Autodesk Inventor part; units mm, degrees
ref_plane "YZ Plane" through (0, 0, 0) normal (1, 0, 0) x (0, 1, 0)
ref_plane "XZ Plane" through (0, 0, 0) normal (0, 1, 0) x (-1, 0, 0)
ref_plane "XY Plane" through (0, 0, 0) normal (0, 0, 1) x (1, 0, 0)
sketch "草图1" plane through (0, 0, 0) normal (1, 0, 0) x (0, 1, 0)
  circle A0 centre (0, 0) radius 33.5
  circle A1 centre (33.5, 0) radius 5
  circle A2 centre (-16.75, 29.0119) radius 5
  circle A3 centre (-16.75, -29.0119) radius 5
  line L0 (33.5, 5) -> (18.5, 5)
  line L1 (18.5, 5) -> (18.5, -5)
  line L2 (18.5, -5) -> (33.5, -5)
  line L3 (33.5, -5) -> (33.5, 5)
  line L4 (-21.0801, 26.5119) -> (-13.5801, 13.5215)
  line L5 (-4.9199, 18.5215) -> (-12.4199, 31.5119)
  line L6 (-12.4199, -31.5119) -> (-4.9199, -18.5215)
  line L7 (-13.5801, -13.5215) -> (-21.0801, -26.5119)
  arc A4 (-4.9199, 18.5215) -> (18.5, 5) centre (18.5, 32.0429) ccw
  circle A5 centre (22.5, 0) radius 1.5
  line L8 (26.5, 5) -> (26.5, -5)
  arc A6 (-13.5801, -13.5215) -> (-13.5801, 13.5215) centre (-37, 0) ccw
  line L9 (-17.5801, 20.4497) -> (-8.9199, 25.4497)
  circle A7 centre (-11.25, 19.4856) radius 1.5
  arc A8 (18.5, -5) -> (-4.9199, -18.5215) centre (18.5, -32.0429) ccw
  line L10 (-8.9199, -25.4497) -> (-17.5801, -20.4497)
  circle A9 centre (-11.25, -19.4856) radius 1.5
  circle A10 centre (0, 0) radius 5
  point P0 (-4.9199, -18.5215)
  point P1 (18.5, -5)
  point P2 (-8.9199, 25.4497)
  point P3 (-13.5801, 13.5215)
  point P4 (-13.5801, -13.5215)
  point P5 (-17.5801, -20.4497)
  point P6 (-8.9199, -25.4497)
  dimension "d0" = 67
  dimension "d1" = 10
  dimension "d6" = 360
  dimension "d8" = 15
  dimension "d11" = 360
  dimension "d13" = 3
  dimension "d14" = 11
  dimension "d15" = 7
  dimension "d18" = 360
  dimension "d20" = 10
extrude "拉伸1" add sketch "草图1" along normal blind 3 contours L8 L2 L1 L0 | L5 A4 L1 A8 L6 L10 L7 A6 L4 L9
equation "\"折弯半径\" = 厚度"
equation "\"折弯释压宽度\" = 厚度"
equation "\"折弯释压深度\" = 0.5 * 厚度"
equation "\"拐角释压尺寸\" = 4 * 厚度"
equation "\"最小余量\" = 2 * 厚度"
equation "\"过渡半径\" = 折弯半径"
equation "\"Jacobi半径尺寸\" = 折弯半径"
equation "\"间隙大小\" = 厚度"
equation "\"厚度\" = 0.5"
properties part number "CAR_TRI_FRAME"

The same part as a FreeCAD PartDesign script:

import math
import FreeCAD as App
import Part
import Sketcher
from FreeCAD import Vector
Q = App.Units.Quantity

doc = App.newDocument("Part")
params = doc.addObject("Spreadsheet::Sheet", "Params")
for row, (alias, value) in enumerate([
    ("sketch1_diameter", "3 mm"),
    ("sketch1_diameter2", "10 mm"),
    ("sketch1_height", "10 mm"),
    ("sketch1_length", "10 mm"),
    ("sketch1_width", "8 mm"),
    ("pad1_length", "3 mm"),
], start=1):
    params.set(f"A{row}", alias)
    params.set(f"B{row}", "=" + value)
    params.setAlias(f"B{row}", alias)

body = doc.addObject("PartDesign::Body", "Body")

sketch1 = doc.addObject("Sketcher::SketchObject", "Sketch")
body.addObject(sketch1)
sketch1.AttachmentSupport = (doc.YZ_Plane, [""])
sketch1.MapMode = "FlatFace"
sketch1.addGeometry([
    Part.LineSegment(Vector(26.5, -5, 0), Vector(26.5, 5, 0)),
    Part.LineSegment(Vector(26.5, 5, 0), Vector(18.5, 5, 0)),
    Part.ArcOfCircle(Part.Circle(Vector(18.5, 32, 0), Vector(0, 0, 1), 27), math.radians(-150), math.radians(-90)),
    Part.LineSegment(Vector(-4.9, 18.5, 0), Vector(-8.9, 25.4, 0)),
    Part.LineSegment(Vector(-8.9, 25.4, 0), Vector(-17.6, 20.4, 0)),
    Part.LineSegment(Vector(-17.6, 20.4, 0), Vector(-13.6, 13.5, 0)),
    Part.ArcOfCircle(Part.Circle(Vector(-37, 0, 0), Vector(0, 0, 1), 27), math.radians(-30), math.radians(30)),
    Part.LineSegment(Vector(-13.6, -13.5, 0), Vector(-17.6, -20.4, 0)),
    Part.LineSegment(Vector(-17.6, -20.4, 0), Vector(-8.9, -25.4, 0)),
    Part.LineSegment(Vector(-8.9, -25.4, 0), Vector(-4.9, -18.5, 0)),
    Part.ArcOfCircle(Part.Circle(Vector(18.5, -32, 0), Vector(0, 0, 1), 27), math.radians(90), math.radians(150)),
    Part.LineSegment(Vector(18.5, -5, 0), Vector(26.5, -5, 0)),
    Part.Circle(Vector(22.5, 0, 0), Vector(0, 0, 1), 1.5),
    Part.Circle(Vector(-11.2, 19.5, 0), Vector(0, 0, 1), 1.5),
    Part.Circle(Vector(-11.2, -19.5, 0), Vector(0, 0, 1), 1.5),
    Part.Circle(Vector(0, 0, 0), Vector(0, 0, 1), 5),
], False)
sketch1.addConstraint([
    Sketcher.Constraint("Coincident", 0, 2, 1, 1),
    Sketcher.Constraint("Tangent", 1, 2, 2, 2),
    Sketcher.Constraint("Tangent", 2, 1, 3, 1),
    Sketcher.Constraint("Coincident", 3, 2, 4, 1),
    Sketcher.Constraint("Coincident", 4, 2, 5, 1),
    Sketcher.Constraint("Tangent", 5, 2, 6, 2),
    Sketcher.Constraint("Tangent", 6, 1, 7, 1),
    Sketcher.Constraint("Coincident", 7, 2, 8, 1),
    Sketcher.Constraint("Coincident", 8, 2, 9, 1),
    Sketcher.Constraint("Tangent", 9, 2, 10, 2),
    Sketcher.Constraint("Tangent", 10, 1, 11, 1),
    Sketcher.Constraint("Coincident", 11, 2, 0, 1),
    Sketcher.Constraint("Vertical", 0),
    Sketcher.Constraint("Horizontal", 1),
    Sketcher.Constraint("Horizontal", 11),
    Sketcher.Constraint("Coincident", 15, 3, -1, 1),
    Sketcher.Constraint("Equal", 2, 6),
    Sketcher.Constraint("Equal", 6, 10),
    Sketcher.Constraint("Equal", 12, 13),
    Sketcher.Constraint("Equal", 13, 14),
    Sketcher.Constraint("Symmetric", 2, 3, 10, 3, -1),
    Sketcher.Constraint("Symmetric", 13, 3, 14, 3, -1),
    Sketcher.Constraint("Symmetric", 5, 2, 6, 1, -1),
    Sketcher.Constraint("Symmetric", 3, 2, 8, 2, -1),
    Sketcher.Constraint("PointOnObject", 12, 3, -1),
    Sketcher.Constraint("Perpendicular", 3, 4),
    Sketcher.Constraint("Perpendicular", 4, 5),
    Sketcher.Constraint("Perpendicular", 7, 8),
    Sketcher.Constraint("Equal", 3, 5),
    Sketcher.Constraint("Diameter", 12, Q("3 mm")),
    Sketcher.Constraint("Diameter", 15, Q("10 mm")),
    Sketcher.Constraint("DistanceY", 0, 1, 0, 2, Q("10 mm")),
    Sketcher.Constraint("Distance", 4, Q("10 mm")),
    Sketcher.Constraint("DistanceX", 1, 2, 1, 1, Q("8 mm")),
    Sketcher.Constraint("Distance", 3, Q("8 mm")),
    Sketcher.Constraint("DistanceX", 6, 3, -1, 1, Q("37 mm")),
    Sketcher.Constraint("Radius", 2, Q("27.043 mm")),
    Sketcher.Constraint("DistanceX", 2, 3, 12, 3, Q("4 mm")),
    Sketcher.Constraint("DistanceX", 13, 3, -1, 1, Q("11.25 mm")),
    Sketcher.Constraint("DistanceY", 2, 1, 13, 3, Q("0.964 mm")),
])
sketch1.setExpression("Constraints[29]", "Params.sketch1_diameter")
sketch1.setExpression("Constraints[30]", "Params.sketch1_diameter2")
sketch1.setExpression("Constraints[31]", "Params.sketch1_height")
sketch1.setExpression("Constraints[32]", "Params.sketch1_length")
sketch1.setExpression("Constraints[33]", "Params.sketch1_width")
pad1 = doc.addObject("PartDesign::Pad", "Pad")
body.addObject(pad1)
pad1.Profile = sketch1
pad1.setExpression("Length", "Params.pad1_length")

doc.recompute()
